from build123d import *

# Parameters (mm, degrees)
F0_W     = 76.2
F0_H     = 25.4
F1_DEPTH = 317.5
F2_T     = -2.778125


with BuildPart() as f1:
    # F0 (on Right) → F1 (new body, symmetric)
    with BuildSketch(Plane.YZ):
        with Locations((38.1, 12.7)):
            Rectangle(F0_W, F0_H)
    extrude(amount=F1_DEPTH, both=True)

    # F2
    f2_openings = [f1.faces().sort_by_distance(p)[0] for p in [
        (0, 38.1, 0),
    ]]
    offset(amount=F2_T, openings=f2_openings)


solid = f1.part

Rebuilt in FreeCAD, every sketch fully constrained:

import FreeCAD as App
import Part
import Sketcher

V = App.Vector
Q = App.Units.Quantity


def faces_at(feature, points):
    """Names of the faces that lie closest to the given points."""
    faces = feature.Shape.Faces
    near = lambda p: min(range(len(faces)), key=lambda i: faces[i].distToShape(Part.Vertex(*p))[0])
    return sorted({f"Face{near(p) + 1}" for p in points})

doc = App.newDocument("Part")
body = doc.addObject("PartDesign::Body", "Body")

sketch1 = body.newObject("Sketcher::SketchObject", "Sketch")
sketch1.AttachmentSupport = (doc.getObject("YZ_Plane"), [""])
sketch1.MapMode = "FlatFace"
sketch1.addGeometry(Part.LineSegment(V(0, 25, 0), V(0, 0, 0)), False)
sketch1.addGeometry(Part.LineSegment(V(0, 0, 0), V(76, 0, 0)), False)
sketch1.addGeometry(Part.LineSegment(V(76, 0, 0), V(76, 25, 0)), False)
sketch1.addGeometry(Part.LineSegment(V(76, 25, 0), V(0, 25, 0)), False)
sketch1.addConstraint(Sketcher.Constraint("Coincident", 0, 2, 1, 1))
sketch1.addConstraint(Sketcher.Constraint("Coincident", 1, 2, 2, 1))
sketch1.addConstraint(Sketcher.Constraint("Coincident", 2, 2, 3, 1))
sketch1.addConstraint(Sketcher.Constraint("Coincident", 3, 2, 0, 1))
sketch1.addConstraint(Sketcher.Constraint("Vertical", 0))
sketch1.addConstraint(Sketcher.Constraint("Horizontal", 1))
sketch1.addConstraint(Sketcher.Constraint("Vertical", 2))
sketch1.addConstraint(Sketcher.Constraint("Horizontal", 3))
sketch1.addConstraint(Sketcher.Constraint("Coincident", 0, 2, -1, 1))
sketch1.addConstraint(Sketcher.Constraint("DistanceX", 1, 1, 1, 2, Q("3 in")))
sketch1.addConstraint(Sketcher.Constraint("DistanceY", 0, 2, 0, 1, Q("1 in")))
pad1 = body.newObject("PartDesign::Pad", "Pad")
pad1.Profile = sketch1
pad1.Length = Q("25 in")
pad1.Midplane = True
doc.recompute()

thickness = body.newObject("PartDesign::Thickness", "Thickness")
thickness.Base = (pad1, faces_at(pad1, [(0, 38.1, 0)]))
thickness.Value = Q("0.109375 in")
thickness.Reversed = True
thickness.Join = "Arc"

doc.recompute()
